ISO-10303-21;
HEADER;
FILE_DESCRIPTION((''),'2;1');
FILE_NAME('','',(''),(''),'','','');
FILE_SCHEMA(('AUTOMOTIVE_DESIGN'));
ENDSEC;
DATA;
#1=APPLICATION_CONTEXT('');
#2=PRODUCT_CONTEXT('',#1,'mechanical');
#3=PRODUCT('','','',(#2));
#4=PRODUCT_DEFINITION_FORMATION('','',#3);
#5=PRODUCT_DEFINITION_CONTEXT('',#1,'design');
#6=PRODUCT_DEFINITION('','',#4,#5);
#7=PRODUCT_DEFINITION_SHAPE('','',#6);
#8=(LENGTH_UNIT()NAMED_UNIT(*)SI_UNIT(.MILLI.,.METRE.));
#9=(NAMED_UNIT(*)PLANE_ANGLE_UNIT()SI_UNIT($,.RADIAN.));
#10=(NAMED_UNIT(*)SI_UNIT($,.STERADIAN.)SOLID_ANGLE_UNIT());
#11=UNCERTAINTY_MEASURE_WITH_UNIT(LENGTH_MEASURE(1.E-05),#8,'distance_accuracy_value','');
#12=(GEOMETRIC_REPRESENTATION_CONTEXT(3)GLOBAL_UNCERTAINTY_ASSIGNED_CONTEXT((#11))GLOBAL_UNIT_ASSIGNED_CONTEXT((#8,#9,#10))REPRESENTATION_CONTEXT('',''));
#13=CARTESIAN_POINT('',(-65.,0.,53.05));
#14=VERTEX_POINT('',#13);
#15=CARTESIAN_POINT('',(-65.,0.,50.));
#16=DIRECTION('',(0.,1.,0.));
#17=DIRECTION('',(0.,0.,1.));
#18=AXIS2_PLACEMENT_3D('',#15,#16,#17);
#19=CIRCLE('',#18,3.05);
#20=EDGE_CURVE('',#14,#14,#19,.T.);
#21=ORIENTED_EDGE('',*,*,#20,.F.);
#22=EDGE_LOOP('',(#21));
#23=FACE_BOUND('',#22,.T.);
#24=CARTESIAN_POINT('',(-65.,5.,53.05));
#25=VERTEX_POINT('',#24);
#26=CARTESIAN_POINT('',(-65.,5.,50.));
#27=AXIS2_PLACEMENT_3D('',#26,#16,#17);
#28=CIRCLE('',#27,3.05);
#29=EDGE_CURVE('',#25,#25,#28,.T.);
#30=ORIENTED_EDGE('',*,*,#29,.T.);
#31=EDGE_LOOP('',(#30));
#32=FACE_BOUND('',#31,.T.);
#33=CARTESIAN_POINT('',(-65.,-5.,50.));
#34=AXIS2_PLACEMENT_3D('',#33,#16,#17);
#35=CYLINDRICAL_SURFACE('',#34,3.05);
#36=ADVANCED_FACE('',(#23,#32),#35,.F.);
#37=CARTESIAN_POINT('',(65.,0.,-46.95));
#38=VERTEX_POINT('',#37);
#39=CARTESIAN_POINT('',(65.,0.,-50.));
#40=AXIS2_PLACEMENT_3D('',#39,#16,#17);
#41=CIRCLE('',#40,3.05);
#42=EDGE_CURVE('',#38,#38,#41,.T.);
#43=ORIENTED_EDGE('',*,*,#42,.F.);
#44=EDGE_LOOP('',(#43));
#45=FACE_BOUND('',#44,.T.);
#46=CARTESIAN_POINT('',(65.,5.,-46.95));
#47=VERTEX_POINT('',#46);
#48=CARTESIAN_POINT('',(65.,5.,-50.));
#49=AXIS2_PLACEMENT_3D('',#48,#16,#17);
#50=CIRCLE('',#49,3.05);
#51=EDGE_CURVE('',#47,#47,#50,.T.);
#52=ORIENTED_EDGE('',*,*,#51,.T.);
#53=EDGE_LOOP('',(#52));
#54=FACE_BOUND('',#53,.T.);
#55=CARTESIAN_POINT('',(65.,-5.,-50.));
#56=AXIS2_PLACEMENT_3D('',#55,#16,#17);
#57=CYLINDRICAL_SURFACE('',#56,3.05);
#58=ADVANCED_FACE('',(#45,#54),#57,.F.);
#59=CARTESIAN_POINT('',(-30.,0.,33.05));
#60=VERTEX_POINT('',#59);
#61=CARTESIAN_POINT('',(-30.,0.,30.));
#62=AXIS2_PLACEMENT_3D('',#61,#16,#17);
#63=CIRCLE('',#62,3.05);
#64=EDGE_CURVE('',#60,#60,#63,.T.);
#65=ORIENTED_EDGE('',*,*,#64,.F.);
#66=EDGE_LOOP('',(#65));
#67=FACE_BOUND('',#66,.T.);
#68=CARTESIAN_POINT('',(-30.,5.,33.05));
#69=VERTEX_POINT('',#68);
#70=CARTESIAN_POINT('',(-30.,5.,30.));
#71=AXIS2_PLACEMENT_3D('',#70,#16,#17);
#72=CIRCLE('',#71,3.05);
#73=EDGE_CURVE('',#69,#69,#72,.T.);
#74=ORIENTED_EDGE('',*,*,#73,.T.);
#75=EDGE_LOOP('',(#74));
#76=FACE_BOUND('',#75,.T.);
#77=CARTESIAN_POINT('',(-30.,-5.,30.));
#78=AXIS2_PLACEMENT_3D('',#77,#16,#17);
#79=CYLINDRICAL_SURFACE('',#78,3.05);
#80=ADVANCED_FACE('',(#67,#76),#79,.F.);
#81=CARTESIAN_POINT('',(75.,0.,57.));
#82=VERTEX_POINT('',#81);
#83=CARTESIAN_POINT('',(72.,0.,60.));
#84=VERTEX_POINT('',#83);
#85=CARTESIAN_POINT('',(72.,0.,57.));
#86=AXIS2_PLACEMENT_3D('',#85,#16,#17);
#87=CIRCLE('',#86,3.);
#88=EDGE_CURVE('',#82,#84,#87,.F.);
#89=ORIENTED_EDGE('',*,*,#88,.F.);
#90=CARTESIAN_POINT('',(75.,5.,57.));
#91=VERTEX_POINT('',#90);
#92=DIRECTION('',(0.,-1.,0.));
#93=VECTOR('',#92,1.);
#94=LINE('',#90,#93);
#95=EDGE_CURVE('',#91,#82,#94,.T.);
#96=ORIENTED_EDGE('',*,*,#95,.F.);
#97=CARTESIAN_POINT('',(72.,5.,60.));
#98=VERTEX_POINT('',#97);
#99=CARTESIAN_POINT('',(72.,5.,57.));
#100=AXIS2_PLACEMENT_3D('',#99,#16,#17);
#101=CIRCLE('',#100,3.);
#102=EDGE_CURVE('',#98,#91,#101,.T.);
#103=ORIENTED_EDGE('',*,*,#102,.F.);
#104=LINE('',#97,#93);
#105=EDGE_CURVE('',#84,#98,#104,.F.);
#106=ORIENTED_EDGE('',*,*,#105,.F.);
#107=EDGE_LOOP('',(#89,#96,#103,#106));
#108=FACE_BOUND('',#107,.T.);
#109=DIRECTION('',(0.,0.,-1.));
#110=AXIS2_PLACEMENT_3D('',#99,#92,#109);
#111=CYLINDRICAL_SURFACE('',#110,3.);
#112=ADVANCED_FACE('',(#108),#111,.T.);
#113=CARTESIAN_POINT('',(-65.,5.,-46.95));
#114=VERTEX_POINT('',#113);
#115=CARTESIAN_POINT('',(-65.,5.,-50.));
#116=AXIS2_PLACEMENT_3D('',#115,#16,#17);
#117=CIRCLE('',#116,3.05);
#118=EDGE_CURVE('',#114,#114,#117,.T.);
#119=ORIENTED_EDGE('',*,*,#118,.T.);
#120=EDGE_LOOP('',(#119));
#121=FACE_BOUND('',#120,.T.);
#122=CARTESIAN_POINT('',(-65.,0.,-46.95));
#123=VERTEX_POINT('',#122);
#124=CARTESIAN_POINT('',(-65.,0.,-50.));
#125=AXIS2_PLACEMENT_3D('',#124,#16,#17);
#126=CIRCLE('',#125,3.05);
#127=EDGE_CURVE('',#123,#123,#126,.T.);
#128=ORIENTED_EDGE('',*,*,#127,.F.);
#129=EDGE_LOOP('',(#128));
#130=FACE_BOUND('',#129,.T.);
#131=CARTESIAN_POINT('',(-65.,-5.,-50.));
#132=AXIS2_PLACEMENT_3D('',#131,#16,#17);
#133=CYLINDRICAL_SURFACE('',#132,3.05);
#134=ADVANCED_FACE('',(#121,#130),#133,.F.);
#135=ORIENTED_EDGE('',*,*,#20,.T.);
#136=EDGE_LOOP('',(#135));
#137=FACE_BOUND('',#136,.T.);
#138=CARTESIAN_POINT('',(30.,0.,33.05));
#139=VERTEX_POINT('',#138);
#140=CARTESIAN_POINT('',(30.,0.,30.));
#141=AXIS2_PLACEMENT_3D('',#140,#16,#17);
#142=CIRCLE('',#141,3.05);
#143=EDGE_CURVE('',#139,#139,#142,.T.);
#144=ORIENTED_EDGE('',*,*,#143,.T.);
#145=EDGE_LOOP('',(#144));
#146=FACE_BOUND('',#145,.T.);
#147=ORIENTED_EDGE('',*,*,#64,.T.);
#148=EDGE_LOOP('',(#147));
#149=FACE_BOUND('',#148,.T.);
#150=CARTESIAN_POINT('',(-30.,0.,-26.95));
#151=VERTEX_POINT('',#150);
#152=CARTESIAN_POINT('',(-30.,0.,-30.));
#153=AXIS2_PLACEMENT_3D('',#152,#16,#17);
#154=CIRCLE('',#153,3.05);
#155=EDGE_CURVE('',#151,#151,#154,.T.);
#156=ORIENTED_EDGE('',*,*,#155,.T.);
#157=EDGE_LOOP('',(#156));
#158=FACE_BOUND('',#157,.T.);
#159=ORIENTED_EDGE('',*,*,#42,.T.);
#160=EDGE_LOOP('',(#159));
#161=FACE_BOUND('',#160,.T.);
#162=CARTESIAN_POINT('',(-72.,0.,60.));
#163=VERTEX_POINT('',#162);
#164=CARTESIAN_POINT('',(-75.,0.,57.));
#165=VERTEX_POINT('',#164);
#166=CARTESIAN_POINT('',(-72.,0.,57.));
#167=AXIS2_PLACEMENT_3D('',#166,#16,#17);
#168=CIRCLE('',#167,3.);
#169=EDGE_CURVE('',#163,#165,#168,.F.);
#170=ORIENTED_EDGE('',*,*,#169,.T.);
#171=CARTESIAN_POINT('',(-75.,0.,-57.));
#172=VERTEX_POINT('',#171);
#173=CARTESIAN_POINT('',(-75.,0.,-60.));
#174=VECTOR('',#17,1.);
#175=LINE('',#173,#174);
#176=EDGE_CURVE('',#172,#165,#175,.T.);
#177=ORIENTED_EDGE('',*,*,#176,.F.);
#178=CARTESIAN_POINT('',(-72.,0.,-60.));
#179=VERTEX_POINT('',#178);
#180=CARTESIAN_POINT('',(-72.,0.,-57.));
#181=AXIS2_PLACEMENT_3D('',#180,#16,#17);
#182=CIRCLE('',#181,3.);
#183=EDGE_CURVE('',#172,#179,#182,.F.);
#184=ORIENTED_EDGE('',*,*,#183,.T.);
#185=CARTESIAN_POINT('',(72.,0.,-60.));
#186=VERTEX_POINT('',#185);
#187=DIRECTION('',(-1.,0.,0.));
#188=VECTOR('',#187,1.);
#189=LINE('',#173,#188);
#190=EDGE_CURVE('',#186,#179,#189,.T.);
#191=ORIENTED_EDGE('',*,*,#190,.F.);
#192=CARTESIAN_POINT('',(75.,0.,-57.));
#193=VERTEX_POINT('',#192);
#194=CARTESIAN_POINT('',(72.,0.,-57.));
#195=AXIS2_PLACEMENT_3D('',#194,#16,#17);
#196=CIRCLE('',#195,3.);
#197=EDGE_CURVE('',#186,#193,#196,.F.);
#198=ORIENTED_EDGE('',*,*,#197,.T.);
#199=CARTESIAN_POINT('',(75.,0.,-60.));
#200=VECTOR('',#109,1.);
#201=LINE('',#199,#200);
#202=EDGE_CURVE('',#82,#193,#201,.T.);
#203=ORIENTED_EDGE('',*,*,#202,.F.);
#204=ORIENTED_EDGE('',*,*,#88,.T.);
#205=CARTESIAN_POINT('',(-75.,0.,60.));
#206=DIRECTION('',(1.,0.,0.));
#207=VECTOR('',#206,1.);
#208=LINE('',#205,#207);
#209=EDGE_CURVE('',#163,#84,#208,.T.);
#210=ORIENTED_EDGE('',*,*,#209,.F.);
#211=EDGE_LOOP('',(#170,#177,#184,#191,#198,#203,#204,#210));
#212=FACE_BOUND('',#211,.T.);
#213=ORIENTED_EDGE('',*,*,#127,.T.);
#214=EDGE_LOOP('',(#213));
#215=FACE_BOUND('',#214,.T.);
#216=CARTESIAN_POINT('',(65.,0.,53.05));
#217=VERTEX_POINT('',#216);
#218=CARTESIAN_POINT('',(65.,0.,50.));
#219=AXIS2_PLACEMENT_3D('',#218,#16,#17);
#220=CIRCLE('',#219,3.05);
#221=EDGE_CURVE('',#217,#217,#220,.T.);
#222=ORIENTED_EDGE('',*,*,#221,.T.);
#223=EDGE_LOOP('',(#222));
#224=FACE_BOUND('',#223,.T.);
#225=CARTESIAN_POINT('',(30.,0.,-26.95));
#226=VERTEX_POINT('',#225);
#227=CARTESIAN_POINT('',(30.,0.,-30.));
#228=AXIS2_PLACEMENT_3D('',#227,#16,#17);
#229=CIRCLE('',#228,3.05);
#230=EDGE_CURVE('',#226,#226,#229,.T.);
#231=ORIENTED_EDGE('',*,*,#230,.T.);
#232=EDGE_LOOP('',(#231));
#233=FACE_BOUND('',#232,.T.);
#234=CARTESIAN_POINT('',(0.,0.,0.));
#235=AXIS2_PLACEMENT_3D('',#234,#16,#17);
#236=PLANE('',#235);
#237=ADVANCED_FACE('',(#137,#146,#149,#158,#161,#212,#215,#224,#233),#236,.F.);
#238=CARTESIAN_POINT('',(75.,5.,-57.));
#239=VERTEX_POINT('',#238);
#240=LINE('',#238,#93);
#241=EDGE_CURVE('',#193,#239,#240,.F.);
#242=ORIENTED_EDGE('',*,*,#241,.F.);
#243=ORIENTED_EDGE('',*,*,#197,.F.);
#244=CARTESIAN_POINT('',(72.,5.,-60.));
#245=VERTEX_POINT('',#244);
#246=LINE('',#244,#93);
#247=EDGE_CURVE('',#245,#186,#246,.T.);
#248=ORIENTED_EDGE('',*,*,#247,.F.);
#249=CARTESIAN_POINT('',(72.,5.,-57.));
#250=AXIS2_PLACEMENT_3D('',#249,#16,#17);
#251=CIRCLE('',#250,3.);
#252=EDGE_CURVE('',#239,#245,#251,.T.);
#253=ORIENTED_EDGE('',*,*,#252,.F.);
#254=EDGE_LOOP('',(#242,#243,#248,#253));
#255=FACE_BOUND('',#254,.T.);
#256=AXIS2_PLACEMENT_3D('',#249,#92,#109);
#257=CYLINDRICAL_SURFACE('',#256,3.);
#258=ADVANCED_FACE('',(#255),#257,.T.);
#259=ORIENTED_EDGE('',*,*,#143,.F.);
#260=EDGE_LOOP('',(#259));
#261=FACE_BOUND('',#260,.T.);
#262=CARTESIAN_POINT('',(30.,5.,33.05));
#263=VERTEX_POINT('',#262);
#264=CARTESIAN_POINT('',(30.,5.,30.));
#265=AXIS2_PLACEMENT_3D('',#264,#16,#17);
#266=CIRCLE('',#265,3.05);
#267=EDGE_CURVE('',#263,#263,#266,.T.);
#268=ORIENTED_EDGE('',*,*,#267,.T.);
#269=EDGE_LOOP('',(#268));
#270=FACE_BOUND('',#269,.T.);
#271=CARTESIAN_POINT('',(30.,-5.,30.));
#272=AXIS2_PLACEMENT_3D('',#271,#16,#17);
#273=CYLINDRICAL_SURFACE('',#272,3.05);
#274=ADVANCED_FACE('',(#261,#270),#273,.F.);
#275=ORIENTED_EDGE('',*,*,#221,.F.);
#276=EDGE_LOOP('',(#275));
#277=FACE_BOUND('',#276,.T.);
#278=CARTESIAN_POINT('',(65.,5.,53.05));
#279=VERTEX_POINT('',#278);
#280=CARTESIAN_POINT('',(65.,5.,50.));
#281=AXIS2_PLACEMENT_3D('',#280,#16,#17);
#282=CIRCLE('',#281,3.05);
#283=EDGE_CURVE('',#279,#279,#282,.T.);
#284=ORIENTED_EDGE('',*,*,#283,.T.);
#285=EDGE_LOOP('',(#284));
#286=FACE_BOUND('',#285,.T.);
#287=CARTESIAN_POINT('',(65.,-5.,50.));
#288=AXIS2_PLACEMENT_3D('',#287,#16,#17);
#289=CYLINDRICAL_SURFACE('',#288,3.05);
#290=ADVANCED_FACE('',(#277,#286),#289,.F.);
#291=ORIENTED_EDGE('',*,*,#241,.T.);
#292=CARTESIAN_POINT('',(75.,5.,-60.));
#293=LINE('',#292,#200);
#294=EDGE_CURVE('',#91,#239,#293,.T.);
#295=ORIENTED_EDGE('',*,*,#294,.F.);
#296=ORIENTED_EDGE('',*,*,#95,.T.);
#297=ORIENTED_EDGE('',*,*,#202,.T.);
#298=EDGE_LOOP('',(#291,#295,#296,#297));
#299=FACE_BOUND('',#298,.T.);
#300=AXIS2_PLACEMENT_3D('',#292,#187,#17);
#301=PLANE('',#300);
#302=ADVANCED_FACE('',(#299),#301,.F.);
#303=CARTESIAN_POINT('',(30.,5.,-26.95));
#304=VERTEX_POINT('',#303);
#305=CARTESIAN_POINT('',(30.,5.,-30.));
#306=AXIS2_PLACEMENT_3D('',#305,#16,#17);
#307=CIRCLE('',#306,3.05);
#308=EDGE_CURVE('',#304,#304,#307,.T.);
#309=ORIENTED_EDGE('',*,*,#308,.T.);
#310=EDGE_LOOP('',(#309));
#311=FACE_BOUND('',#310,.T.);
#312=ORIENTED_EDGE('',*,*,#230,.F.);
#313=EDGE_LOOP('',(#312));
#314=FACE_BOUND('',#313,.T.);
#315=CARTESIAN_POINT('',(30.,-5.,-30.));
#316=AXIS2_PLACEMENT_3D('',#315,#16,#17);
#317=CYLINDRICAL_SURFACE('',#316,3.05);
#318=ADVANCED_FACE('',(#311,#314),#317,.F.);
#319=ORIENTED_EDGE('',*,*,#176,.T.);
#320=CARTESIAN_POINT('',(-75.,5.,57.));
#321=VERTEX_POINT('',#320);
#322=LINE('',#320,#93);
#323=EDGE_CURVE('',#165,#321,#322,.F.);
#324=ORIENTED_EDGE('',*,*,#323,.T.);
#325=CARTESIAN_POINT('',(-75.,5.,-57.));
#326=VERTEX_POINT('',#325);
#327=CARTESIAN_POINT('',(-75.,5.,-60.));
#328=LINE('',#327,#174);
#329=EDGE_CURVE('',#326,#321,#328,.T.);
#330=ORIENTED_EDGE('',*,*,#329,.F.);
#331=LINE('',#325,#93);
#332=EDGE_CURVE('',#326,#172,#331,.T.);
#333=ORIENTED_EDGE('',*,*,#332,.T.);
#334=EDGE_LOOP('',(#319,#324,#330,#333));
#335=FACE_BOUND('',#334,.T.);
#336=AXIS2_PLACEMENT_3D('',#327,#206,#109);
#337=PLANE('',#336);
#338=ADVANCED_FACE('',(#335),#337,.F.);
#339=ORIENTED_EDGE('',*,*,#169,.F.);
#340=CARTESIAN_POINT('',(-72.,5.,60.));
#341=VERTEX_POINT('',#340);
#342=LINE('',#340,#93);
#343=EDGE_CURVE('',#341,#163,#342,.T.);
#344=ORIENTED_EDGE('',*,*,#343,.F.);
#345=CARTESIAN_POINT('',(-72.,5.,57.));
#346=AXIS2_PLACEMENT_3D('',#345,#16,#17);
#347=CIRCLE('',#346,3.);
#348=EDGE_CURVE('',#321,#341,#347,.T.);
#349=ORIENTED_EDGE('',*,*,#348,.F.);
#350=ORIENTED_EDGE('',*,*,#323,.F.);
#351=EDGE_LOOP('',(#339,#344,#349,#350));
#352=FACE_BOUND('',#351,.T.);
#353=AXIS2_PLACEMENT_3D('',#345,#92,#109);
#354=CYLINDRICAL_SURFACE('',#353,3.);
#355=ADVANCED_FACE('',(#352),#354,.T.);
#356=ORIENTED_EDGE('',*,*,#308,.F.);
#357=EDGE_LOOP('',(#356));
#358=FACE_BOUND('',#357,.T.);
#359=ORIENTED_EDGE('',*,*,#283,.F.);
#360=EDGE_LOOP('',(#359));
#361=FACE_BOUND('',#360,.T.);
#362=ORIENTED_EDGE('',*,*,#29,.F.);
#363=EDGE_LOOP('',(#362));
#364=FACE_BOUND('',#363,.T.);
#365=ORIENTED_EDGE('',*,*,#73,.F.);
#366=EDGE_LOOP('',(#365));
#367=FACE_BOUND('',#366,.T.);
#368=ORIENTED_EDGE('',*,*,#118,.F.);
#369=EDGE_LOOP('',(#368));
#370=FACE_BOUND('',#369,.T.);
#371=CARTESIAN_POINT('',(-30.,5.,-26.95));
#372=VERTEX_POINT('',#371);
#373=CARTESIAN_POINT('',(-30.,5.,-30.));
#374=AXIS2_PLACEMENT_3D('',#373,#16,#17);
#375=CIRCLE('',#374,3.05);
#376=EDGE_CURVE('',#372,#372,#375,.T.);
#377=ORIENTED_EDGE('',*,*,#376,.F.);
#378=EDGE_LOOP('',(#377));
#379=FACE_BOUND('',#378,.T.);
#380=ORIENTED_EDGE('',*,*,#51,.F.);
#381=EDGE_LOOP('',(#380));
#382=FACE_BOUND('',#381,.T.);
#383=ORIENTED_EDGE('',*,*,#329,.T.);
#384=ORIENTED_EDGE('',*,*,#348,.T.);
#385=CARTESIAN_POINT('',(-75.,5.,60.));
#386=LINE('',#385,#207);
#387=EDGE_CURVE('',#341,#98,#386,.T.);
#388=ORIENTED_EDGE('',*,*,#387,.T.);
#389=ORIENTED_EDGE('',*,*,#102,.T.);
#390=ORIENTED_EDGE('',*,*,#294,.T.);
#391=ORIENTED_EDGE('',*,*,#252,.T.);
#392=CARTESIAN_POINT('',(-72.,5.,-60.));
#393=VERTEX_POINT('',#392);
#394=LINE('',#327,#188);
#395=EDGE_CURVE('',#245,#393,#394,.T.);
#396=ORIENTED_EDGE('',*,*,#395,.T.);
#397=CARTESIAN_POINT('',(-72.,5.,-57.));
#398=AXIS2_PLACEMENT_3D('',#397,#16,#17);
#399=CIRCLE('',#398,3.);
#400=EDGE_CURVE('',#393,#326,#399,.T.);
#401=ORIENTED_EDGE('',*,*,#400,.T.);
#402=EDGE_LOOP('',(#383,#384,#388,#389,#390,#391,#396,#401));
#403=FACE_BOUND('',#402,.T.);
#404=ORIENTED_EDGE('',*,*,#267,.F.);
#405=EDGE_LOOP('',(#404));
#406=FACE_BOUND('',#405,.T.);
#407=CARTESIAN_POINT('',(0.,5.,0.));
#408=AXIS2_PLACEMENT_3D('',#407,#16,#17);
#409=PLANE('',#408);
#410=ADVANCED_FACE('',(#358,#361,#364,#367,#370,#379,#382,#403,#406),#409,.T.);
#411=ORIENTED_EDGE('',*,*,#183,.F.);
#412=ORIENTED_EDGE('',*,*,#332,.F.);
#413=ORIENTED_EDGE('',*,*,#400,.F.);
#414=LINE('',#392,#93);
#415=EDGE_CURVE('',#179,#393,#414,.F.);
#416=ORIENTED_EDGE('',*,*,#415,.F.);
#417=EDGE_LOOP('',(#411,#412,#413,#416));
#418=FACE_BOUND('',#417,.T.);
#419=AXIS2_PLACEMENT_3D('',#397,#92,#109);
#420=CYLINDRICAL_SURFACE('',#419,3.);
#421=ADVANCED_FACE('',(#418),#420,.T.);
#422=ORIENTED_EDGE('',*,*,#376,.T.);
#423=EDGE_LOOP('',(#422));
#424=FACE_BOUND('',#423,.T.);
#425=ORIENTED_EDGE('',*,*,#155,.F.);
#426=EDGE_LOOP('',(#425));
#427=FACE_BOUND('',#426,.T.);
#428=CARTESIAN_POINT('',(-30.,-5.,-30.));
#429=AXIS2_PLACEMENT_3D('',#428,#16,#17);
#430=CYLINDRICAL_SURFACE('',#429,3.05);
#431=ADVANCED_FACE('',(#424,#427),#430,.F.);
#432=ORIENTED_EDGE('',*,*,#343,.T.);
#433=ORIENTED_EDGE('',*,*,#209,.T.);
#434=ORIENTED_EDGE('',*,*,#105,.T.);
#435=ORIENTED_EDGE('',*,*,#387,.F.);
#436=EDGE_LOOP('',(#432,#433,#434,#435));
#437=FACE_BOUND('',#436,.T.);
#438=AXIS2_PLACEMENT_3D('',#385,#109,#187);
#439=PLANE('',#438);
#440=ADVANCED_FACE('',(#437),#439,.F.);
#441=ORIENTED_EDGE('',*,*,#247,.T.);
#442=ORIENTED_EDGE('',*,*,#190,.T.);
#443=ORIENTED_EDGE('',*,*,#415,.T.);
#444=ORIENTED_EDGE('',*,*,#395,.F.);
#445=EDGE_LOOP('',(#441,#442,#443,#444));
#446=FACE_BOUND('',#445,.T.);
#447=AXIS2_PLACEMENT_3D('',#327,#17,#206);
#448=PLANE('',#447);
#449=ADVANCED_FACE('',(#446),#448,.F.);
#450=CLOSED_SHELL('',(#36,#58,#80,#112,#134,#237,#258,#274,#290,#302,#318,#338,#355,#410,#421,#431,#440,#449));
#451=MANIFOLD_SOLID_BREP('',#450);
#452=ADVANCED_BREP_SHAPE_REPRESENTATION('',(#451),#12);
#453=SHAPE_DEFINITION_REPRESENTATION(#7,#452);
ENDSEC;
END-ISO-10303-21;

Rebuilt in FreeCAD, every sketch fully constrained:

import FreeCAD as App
import Part
import Sketcher

V = App.Vector


def edges_at(feature, points):
    """Names of the edges that pass closest to the given points."""
    edges = feature.Shape.Edges
    near = lambda p: min(range(len(edges)), key=lambda i: edges[i].distToShape(Part.Vertex(*p))[0])
    return sorted({f"Edge{near(p) + 1}" for p in points})


def add_polygon(sketch, points):
    """Adds a closed chain of lines whose ends are joined by coincident constraints."""
    first, n = sketch.GeometryCount, len(points)
    for a, b in zip(points, points[1:] + points[:1]):
        sketch.addGeometry(Part.LineSegment(App.Vector(*a, 0), App.Vector(*b, 0)), False)
    for i in range(n):
        sketch.addConstraint(Sketcher.Constraint("Coincident", first + i, 2, first + (i + 1) % n, 1))

doc = App.newDocument("Part")
body = doc.addObject("PartDesign::Body", "Body")

# Sketch on XZ plane
sketch1 = body.newObject("Sketcher::SketchObject", "Sketch")
sketch1.AttachmentSupport = (doc.getObject("XZ_Plane"), [""])
sketch1.MapMode = "FlatFace"
add_polygon(sketch1, [(-75, -60), (-75, 60), (75, 60), (75, -60)])  # lines 0-3
sketch1.addConstraint([
    Sketcher.Constraint("Vertical", 0),
    Sketcher.Constraint("Horizontal", 1),
    Sketcher.Constraint("Vertical", 2),
    Sketcher.Constraint("Horizontal", 3),
    Sketcher.Constraint("Symmetric", 0, 2, 2, 2, -1, 1),
    Sketcher.Constraint("DistanceX", 1, 1, 1, 2, 150.0),
    Sketcher.Constraint("DistanceY", 0, 1, 0, 2, 120.0),
])
pad1 = body.newObject("PartDesign::Pad", "Pad")
pad1.Profile = sketch1
pad1.Length = 5
pad1.Reversed = True

# Sketch on XZ plane
sketch2 = body.newObject("Sketcher::SketchObject", "Sketch001")
sketch2.AttachmentSupport = (doc.getObject("XZ_Plane"), [""])
sketch2.MapMode = "FlatFace"
sketch2.AttachmentOffset = App.Placement(V(0, 0, -5), App.Rotation())
sketch2.addGeometry([
    Part.Circle(V(-30, -30, 0), V(0, 0, 1), 3),  # 0
    Part.Circle(V(30, -30, 0), V(0, 0, 1), 3),  # 1
    Part.Circle(V(30, 30, 0), V(0, 0, 1), 3),  # 2
    Part.Circle(V(-30, 30, 0), V(0, 0, 1), 3),  # 3
    Part.Circle(V(-65, -50, 0), V(0, 0, 1), 3),  # 4
    Part.Circle(V(65, -50, 0), V(0, 0, 1), 3),  # 5
    Part.Circle(V(-65, 50, 0), V(0, 0, 1), 3),  # 6
    Part.Circle(V(65, 50, 0), V(0, 0, 1), 3),  # 7
], False)
sketch2.addConstraint([
    Sketcher.Constraint("Equal", 0, 1),
    Sketcher.Constraint("Equal", 1, 2),
    Sketcher.Constraint("Equal", 2, 3),
    Sketcher.Constraint("Equal", 3, 4),
    Sketcher.Constraint("Equal", 4, 5),
    Sketcher.Constraint("Equal", 5, 6),
    Sketcher.Constraint("Equal", 6, 7),
    Sketcher.Constraint("Symmetric", 0, 3, 2, 3, -1, 1),
    Sketcher.Constraint("Symmetric", 1, 3, 3, 3, -1, 1),
    Sketcher.Constraint("Symmetric", 5, 3, 6, 3, -1, 1),
    Sketcher.Constraint("Symmetric", 4, 3, 7, 3, -1, 1),
    Sketcher.Constraint("Symmetric", 0, 3, 1, 3, -2),
    Sketcher.Constraint("Symmetric", 4, 3, 5, 3, -2),
    Sketcher.Constraint("Diameter", 0, 6.1),
    Sketcher.Constraint("DistanceX", 0, 3, -1, 1, 30.0),
    Sketcher.Constraint("DistanceY", 0, 3, -1, 1, 30.0),
    Sketcher.Constraint("DistanceX", 4, 3, -1, 1, 65.0),
    Sketcher.Constraint("DistanceY", 4, 3, -1, 1, 50.0),
])
pocket1 = body.newObject("PartDesign::Pocket", "Pocket")
pocket1.Profile = sketch2
pocket1.Length = 10
pocket1.Reversed = True
doc.recompute()

fillet = body.newObject("PartDesign::Fillet", "Fillet")
fillet.Base = (pocket1, edges_at(pocket1, [
    (75, 2.5, 60),
    (-75, 2.5, 60),
    (-75, 2.5, -60),
    (75, 2.5, -60),
]))
fillet.Radius = 3

doc.recompute()
